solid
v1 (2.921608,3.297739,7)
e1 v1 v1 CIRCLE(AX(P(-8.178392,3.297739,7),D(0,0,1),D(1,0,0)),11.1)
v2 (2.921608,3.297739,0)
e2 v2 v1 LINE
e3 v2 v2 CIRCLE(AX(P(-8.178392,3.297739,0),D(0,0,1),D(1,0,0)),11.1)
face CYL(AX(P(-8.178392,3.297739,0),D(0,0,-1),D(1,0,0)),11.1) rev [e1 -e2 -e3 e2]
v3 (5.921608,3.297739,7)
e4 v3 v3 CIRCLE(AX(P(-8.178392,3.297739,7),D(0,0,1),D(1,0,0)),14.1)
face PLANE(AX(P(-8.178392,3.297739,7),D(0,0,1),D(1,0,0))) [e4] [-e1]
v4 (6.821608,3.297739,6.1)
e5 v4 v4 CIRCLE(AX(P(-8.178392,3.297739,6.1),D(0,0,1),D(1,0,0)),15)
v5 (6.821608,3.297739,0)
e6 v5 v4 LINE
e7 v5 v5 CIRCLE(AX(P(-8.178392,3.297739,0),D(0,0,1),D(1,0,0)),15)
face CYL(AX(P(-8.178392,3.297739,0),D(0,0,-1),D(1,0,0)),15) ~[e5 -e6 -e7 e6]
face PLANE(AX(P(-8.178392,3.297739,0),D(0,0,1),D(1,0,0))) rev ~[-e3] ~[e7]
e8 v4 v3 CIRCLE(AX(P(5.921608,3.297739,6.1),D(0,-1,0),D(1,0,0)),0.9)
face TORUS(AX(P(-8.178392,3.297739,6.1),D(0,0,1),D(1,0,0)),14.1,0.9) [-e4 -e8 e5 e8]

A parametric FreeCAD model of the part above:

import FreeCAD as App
import Part
import Sketcher
from FreeCAD import Vector
Q = App.Units.Quantity


def edges_at(feature, points):
    """Names of the edges that pass closest to the given points."""
    edges = feature.Shape.Edges
    near = lambda p: min(range(len(edges)), key=lambda i: edges[i].distToShape(Part.Vertex(*p))[0])
    return sorted({f"Edge{near(p) + 1}" for p in points})

doc = App.newDocument("Part")
params = doc.addObject("Spreadsheet::Sheet", "Params")
for row, (alias, value) in enumerate([
    ("sketch1_diameter", "30 mm"),
    ("sketch1_diameter2", "22.2 mm"),
    ("pad1_length", "7 mm"),
    ("fillet_radius", "0.9 mm"),
], start=1):
    params.set(f"A{row}", alias)
    params.set(f"B{row}", "=" + value)
    params.setAlias(f"B{row}", alias)

body = doc.addObject("PartDesign::Body", "Body")

sketch1 = body.newObject("Sketcher::SketchObject", "Sketch")
sketch1.AttachmentSupport = (doc.getObject("XY_Plane"), [""])
sketch1.MapMode = "FlatFace"
sketch1.addGeometry([
    Part.Circle(Vector(-8, 3, 0), Vector(0, 0, 1), 15),
    Part.Circle(Vector(-8, 3, 0), Vector(0, 0, 1), 11),
], False)
sketch1.addConstraint([
    Sketcher.Constraint("Coincident", 1, 3, 0, 3),
    Sketcher.Constraint("Diameter", 0, Q("30 mm")),
    Sketcher.Constraint("Diameter", 1, Q("22.2 mm")),
    Sketcher.Constraint("DistanceY", -1, 1, 0, 3, Q("3.297739 mm")),
    Sketcher.Constraint("DistanceX", 0, 3, -1, 1, Q("8.178392 mm")),
])
sketch1.setExpression("Constraints[1]", "Params.sketch1_diameter")
sketch1.setExpression("Constraints[2]", "Params.sketch1_diameter2")
pad1 = body.newObject("PartDesign::Pad", "Pad")
pad1.Profile = sketch1
pad1.setExpression("Length", "Params.pad1_length")
doc.recompute()

fillet = body.newObject("PartDesign::Fillet", "Fillet")
fillet.Base = (pad1, edges_at(pad1, [(-23.178, 3.298, 7)]))
fillet.setExpression("Radius", "Params.fillet_radius")

doc.recompute()
